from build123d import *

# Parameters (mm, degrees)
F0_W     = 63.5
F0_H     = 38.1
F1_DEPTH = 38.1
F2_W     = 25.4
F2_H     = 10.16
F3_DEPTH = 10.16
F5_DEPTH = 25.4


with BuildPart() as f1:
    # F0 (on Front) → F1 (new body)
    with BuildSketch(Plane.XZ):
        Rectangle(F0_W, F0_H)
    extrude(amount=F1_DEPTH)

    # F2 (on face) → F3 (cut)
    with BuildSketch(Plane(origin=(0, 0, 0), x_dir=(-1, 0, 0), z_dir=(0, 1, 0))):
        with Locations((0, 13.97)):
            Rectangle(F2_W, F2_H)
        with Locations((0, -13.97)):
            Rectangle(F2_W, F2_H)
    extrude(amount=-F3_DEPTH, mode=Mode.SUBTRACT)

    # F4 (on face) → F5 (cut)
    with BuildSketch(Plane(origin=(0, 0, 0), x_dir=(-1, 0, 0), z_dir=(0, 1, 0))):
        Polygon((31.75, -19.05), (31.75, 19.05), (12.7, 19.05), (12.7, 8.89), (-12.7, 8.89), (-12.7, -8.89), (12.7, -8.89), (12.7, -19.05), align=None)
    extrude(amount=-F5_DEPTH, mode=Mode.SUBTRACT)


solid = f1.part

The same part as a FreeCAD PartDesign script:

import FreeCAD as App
import Part
import Sketcher

V = App.Vector
Q = App.Units.Quantity

doc = App.newDocument("Part")
body = doc.addObject("PartDesign::Body", "Body")

# Sketch on XZ plane
sketch1 = body.newObject("Sketcher::SketchObject", "Sketch")
sketch1.AttachmentSupport = (doc.getObject("XZ_Plane"), [""])
sketch1.MapMode = "FlatFace"
sketch1.addGeometry([
    Part.LineSegment(V(-32, 19, 0), V(-32, -19, 0)),
    Part.LineSegment(V(-32, -19, 0), V(32, -19, 0)),
    Part.LineSegment(V(32, -19, 0), V(32, 19, 0)),
    Part.LineSegment(V(32, 19, 0), V(-32, 19, 0)),
], False)
sketch1.addConstraint([
    Sketcher.Constraint("Coincident", 0, 2, 1, 1),
    Sketcher.Constraint("Coincident", 1, 2, 2, 1),
    Sketcher.Constraint("Coincident", 2, 2, 3, 1),
    Sketcher.Constraint("Coincident", 3, 2, 0, 1),
    Sketcher.Constraint("Vertical", 0),
    Sketcher.Constraint("Horizontal", 1),
    Sketcher.Constraint("Vertical", 2),
    Sketcher.Constraint("Horizontal", 3),
    Sketcher.Constraint("Symmetric", 0, 2, 2, 2, -1, 1),
    Sketcher.Constraint("DistanceX", 1, 1, 1, 2, Q("2.5 in")),
    Sketcher.Constraint("DistanceY", 0, 2, 0, 1, Q("1.5 in")),
])
pad1 = body.newObject("PartDesign::Pad", "Pad")
pad1.Profile = sketch1
pad1.Length = Q("1.5 in")

# Sketch on XZ plane
sketch2 = body.newObject("Sketcher::SketchObject", "Sketch001")
sketch2.AttachmentSupport = (doc.getObject("XZ_Plane"), [""])
sketch2.MapMode = "FlatFace"
sketch2.addGeometry([
    Part.LineSegment(V(13, 19, 0), V(13, 9, 0)),  # 0
    Part.LineSegment(V(13, 9, 0), V(-13, 9, 0)),  # 1
    Part.LineSegment(V(-13, 9, 0), V(-13, 19, 0)),  # 2
    Part.LineSegment(V(-13, 19, 0), V(13, 19, 0)),  # 3
    Part.LineSegment(V(13, -9, 0), V(13, -19, 0)),  # 4
    Part.LineSegment(V(13, -19, 0), V(-13, -19, 0)),  # 5
    Part.LineSegment(V(-13, -19, 0), V(-13, -9, 0)),  # 6
    Part.LineSegment(V(-13, -9, 0), V(13, -9, 0)),  # 7
], False)
sketch2.addConstraint([
    Sketcher.Constraint("Coincident", 0, 2, 1, 1),
    Sketcher.Constraint("Coincident", 1, 2, 2, 1),
    Sketcher.Constraint("Coincident", 2, 2, 3, 1),
    Sketcher.Constraint("Coincident", 3, 2, 0, 1),
    Sketcher.Constraint("Coincident", 4, 2, 5, 1),
    Sketcher.Constraint("Coincident", 5, 2, 6, 1),
    Sketcher.Constraint("Coincident", 6, 2, 7, 1),
    Sketcher.Constraint("Coincident", 7, 2, 4, 1),
    Sketcher.Constraint("Vertical", 0),
    Sketcher.Constraint("Horizontal", 1),
    Sketcher.Constraint("Vertical", 2),
    Sketcher.Constraint("Horizontal", 3),
    Sketcher.Constraint("Vertical", 4),
    Sketcher.Constraint("Horizontal", 5),
    Sketcher.Constraint("Vertical", 6),
    Sketcher.Constraint("Horizontal", 7),
    Sketcher.Constraint("Symmetric", 2, 2, 4, 2, -1, 1),
    Sketcher.Constraint("Symmetric", 0, 2, 6, 2, -1, 1),
    Sketcher.Constraint("Vertical", 3, 2, 4, 2),
    Sketcher.Constraint("DistanceX", 1, 2, 1, 1, Q("1 in")),
    Sketcher.Constraint("DistanceY", 0, 2, 0, 1, Q("0.4 in")),
    Sketcher.Constraint("DistanceY", 4, 2, 0, 2, Q("1.1 in")),
])
pocket1 = body.newObject("PartDesign::Pocket", "Pocket")
pocket1.Profile = sketch2
pocket1.Length = Q("0.4 in")
pocket1.Reversed = True

# Sketch on XZ plane
sketch3 = body.newObject("Sketcher::SketchObject", "Sketch002")
sketch3.AttachmentSupport = (doc.getObject("XZ_Plane"), [""])
sketch3.MapMode = "FlatFace"
sketch3.addGeometry([
    Part.LineSegment(V(-32, -19, 0), V(-32, 19, 0)),  # 0
    Part.LineSegment(V(-32, 19, 0), V(-13, 19, 0)),  # 1
    Part.LineSegment(V(-13, 19, 0), V(-13, 9, 0)),  # 2
    Part.LineSegment(V(-13, 9, 0), V(13, 9, 0)),  # 3
    Part.LineSegment(V(13, 9, 0), V(13, -9, 0)),  # 4
    Part.LineSegment(V(13, -9, 0), V(-13, -9, 0)),  # 5
    Part.LineSegment(V(-13, -9, 0), V(-13, -19, 0)),  # 6
    Part.LineSegment(V(-13, -19, 0), V(-32, -19, 0)),  # 7
], False)
sketch3.addConstraint([
    Sketcher.Constraint("Coincident", 0, 2, 1, 1),
    Sketcher.Constraint("Coincident", 1, 2, 2, 1),
    Sketcher.Constraint("Coincident", 2, 2, 3, 1),
    Sketcher.Constraint("Coincident", 3, 2, 4, 1),
    Sketcher.Constraint("Coincident", 4, 2, 5, 1),
    Sketcher.Constraint("Coincident", 5, 2, 6, 1),
    Sketcher.Constraint("Coincident", 6, 2, 7, 1),
    Sketcher.Constraint("Coincident", 7, 2, 0, 1),
    Sketcher.Constraint("Vertical", 0),
    Sketcher.Constraint("Horizontal", 1),
    Sketcher.Constraint("Vertical", 2),
    Sketcher.Constraint("Horizontal", 3),
    Sketcher.Constraint("Vertical", 4),
    Sketcher.Constraint("Horizontal", 5),
    Sketcher.Constraint("Vertical", 6),
    Sketcher.Constraint("Horizontal", 7),
    Sketcher.Constraint("Symmetric", 2, 2, 4, 2, -1, 1),
    Sketcher.Constraint("Symmetric", 1, 2, 6, 2, -1),
    Sketcher.Constraint("DistanceX", 3, 1, 3, 2, Q("1 in")),
    Sketcher.Constraint("DistanceY", 0, 1, 0, 2, Q("1.5 in")),
    Sketcher.Constraint("DistanceY", 2, 2, 2, 1, Q("0.4 in")),
    Sketcher.Constraint("DistanceX", 1, 1, 1, 2, Q("0.75 in")),
])
pocket2 = body.newObject("PartDesign::Pocket", "Pocket001")
pocket2.Profile = sketch3
pocket2.Length = Q("1 in")
pocket2.Reversed = True

doc.recompute()
